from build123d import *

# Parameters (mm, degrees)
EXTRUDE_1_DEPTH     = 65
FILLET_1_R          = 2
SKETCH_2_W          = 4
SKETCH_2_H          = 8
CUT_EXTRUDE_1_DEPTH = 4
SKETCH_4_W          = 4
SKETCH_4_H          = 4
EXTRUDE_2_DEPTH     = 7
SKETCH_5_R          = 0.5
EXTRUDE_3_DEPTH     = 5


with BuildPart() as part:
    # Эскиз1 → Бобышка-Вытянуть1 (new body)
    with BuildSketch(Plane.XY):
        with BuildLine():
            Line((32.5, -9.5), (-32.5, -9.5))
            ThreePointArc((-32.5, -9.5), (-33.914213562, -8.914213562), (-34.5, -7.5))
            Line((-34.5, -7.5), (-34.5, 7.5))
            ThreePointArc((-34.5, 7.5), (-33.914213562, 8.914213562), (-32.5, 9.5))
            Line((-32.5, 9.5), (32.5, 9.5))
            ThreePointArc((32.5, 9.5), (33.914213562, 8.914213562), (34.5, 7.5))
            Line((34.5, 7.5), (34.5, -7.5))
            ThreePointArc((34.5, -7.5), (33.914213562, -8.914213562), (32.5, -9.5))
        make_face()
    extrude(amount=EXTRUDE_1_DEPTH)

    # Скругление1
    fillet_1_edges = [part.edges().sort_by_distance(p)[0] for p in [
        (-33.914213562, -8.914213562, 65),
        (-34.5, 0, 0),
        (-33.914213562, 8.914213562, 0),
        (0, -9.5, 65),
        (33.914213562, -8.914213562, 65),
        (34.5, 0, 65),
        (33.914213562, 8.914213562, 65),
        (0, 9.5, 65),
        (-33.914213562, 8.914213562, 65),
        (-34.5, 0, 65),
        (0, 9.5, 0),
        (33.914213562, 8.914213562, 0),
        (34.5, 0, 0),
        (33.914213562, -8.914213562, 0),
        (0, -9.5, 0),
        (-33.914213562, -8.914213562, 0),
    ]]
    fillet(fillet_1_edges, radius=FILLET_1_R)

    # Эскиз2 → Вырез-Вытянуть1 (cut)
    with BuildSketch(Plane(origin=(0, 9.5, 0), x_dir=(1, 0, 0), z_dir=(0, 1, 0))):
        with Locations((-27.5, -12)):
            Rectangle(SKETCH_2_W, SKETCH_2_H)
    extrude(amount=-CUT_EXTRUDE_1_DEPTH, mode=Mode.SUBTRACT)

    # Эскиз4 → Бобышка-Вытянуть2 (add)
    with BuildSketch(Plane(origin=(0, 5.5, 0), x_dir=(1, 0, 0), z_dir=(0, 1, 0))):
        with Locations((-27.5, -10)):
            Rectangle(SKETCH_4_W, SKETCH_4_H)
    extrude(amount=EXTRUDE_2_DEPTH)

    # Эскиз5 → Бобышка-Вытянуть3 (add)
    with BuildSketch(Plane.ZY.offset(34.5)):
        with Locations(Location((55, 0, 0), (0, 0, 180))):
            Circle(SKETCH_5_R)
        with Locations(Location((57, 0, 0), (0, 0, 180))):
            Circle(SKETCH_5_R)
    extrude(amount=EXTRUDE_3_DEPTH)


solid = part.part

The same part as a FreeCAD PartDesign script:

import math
import FreeCAD as App
import Part
import Sketcher
from FreeCAD import Vector


def edges_at(feature, points):
    """Names of the edges that pass closest to the given points."""
    edges = feature.Shape.Edges
    near = lambda p: min(range(len(edges)), key=lambda i: edges[i].distToShape(Part.Vertex(*p))[0])
    return sorted({f"Edge{near(p) + 1}" for p in points})

doc = App.newDocument("Part")
params = doc.addObject("Spreadsheet::Sheet", "Params")
for row, (alias, value) in enumerate([
    ("sketch1_radius", "2 mm"),
    ("sketch1_width", "65 mm"),
    ("sketch1_height", "15 mm"),
    ("pad1_length", "65 mm"),
    ("fillet_radius", "2 mm"),
    ("sketch2_width", "4 mm"),
    ("sketch2_height", "8 mm"),
    ("pocket1_length", "4 mm"),
    ("sketch3_width", "4 mm"),
    ("pad2_length", "7 mm"),
    ("sketch4_diameter", "1 mm"),
    ("pad3_length", "5 mm"),
], start=1):
    params.set(f"A{row}", alias)
    params.set(f"B{row}", "=" + value)
    params.setAlias(f"B{row}", alias)

body = doc.addObject("PartDesign::Body", "Body")

# Sketch on XY plane
sketch1 = doc.addObject("Sketcher::SketchObject", "Sketch")
body.addObject(sketch1)
sketch1.AttachmentSupport = (doc.XY_Plane, [""])
sketch1.MapMode = "FlatFace"
sketch1.addGeometry([
    Part.LineSegment(Vector(-32.5, -9.5, 0), Vector(32.5, -9.5, 0)),  # 0
    Part.ArcOfCircle(Part.Circle(Vector(32.5, -7.5, 0), Vector(0, 0, 1), 2), math.radians(-90), math.radians(0)),  # 1
    Part.LineSegment(Vector(34.5, -7.5, 0), Vector(34.5, 7.5, 0)),  # 2
    Part.ArcOfCircle(Part.Circle(Vector(32.5, 7.5, 0), Vector(0, 0, 1), 2), math.radians(0), math.radians(90)),  # 3
    Part.LineSegment(Vector(32.5, 9.5, 0), Vector(-32.5, 9.5, 0)),  # 4
    Part.ArcOfCircle(Part.Circle(Vector(-32.5, 7.5, 0), Vector(0, 0, 1), 2), math.radians(90), math.radians(180)),  # 5
    Part.LineSegment(Vector(-34.5, 7.5, 0), Vector(-34.5, -7.5, 0)),  # 6
    Part.ArcOfCircle(Part.Circle(Vector(-32.5, -7.5, 0), Vector(0, 0, 1), 2), math.radians(-180), math.radians(-90)),  # 7
], False)
sketch1.addConstraint([
    Sketcher.Constraint("Tangent", 0, 2, 1, 1),
    Sketcher.Constraint("Tangent", 1, 2, 2, 1),
    Sketcher.Constraint("Tangent", 2, 2, 3, 1),
    Sketcher.Constraint("Tangent", 3, 2, 4, 1),
    Sketcher.Constraint("Tangent", 4, 2, 5, 1),
    Sketcher.Constraint("Tangent", 5, 2, 6, 1),
    Sketcher.Constraint("Tangent", 6, 2, 7, 1),
    Sketcher.Constraint("Tangent", 7, 2, 0, 1),
    Sketcher.Constraint("Horizontal", 0),
    Sketcher.Constraint("Vertical", 2),
    Sketcher.Constraint("Horizontal", 4),
    Sketcher.Constraint("Vertical", 6),
    Sketcher.Constraint("Equal", 1, 3),
    Sketcher.Constraint("Equal", 3, 5),
    Sketcher.Constraint("Equal", 5, 7),
    Sketcher.Constraint("Symmetric", 1, 3, 5, 3, -1, 1),
    Sketcher.Constraint("Radius", 1, 2.0),
    Sketcher.Constraint("DistanceX", 0, 1, 0, 2, 65.0),
    Sketcher.Constraint("DistanceY", 2, 1, 2, 2, 15.0),
])
sketch1.setExpression("Constraints[16]", "Params.sketch1_radius")
sketch1.setExpression("Constraints[17]", "Params.sketch1_width")
sketch1.setExpression("Constraints[18]", "Params.sketch1_height")
pad1 = doc.addObject("PartDesign::Pad", "Pad")
body.addObject(pad1)
pad1.Profile = sketch1
pad1.setExpression("Length", "Params.pad1_length")
doc.recompute()

fillet = doc.addObject("PartDesign::Fillet", "Fillet")
body.addObject(fillet)
fillet.Base = (pad1, edges_at(pad1, [
    (-33.914, -8.914, 65),
    (-34.5, 0, 0),
    (-33.914, 8.914, 0),
    (0, -9.5, 65),
    (33.914, -8.914, 65),
    (34.5, 0, 65),
    (33.914, 8.914, 65),
    (0, 9.5, 65),
    (-33.914, 8.914, 65),
    (-34.5, 0, 65),
    (0, 9.5, 0),
    (33.914, 8.914, 0),
    (34.5, 0, 0),
    (33.914, -8.914, 0),
    (0, -9.5, 0),
    (-33.914, -8.914, 0),
]))
fillet.setExpression("Radius", "Params.fillet_radius")

# Sketch on XZ plane
sketch2 = doc.addObject("Sketcher::SketchObject", "Sketch001")
body.addObject(sketch2)
sketch2.AttachmentSupport = (doc.XZ_Plane, [""])
sketch2.MapMode = "FlatFace"
sketch2.AttachmentOffset = App.Placement(Vector(0, 0, -9.5), App.Rotation())
sketch2.addGeometry([
    Part.LineSegment(Vector(-29.5, 8, 0), Vector(-29.5, 16, 0)),
    Part.LineSegment(Vector(-29.5, 16, 0), Vector(-25.5, 16, 0)),
    Part.LineSegment(Vector(-25.5, 16, 0), Vector(-25.5, 8, 0)),
    Part.LineSegment(Vector(-25.5, 8, 0), Vector(-29.5, 8, 0)),
], False)
sketch2.addConstraint([
    Sketcher.Constraint("Coincident", 0, 2, 1, 1),
    Sketcher.Constraint("Coincident", 1, 2, 2, 1),
    Sketcher.Constraint("Coincident", 2, 2, 3, 1),
    Sketcher.Constraint("Coincident", 3, 2, 0, 1),
    Sketcher.Constraint("Vertical", 0),
    Sketcher.Constraint("Horizontal", 1),
    Sketcher.Constraint("Vertical", 2),
    Sketcher.Constraint("Horizontal", 3),
    Sketcher.Constraint("DistanceX", 1, 1, 1, 2, 4.0),
    Sketcher.Constraint("DistanceY", 0, 1, 0, 2, 8.0),
    Sketcher.Constraint("DistanceY", -1, 1, 0, 2, 16.0),
    Sketcher.Constraint("DistanceX", 0, 2, -1, 1, 29.5),
])
sketch2.setExpression("Constraints[8]", "Params.sketch2_width")
sketch2.setExpression("Constraints[9]", "Params.sketch2_height")
pocket1 = doc.addObject("PartDesign::Pocket", "Pocket")
body.addObject(pocket1)
pocket1.Profile = sketch2
pocket1.setExpression("Length", "Params.pocket1_length")
pocket1.Reversed = True

# Sketch on XZ plane
sketch3 = doc.addObject("Sketcher::SketchObject", "Sketch002")
body.addObject(sketch3)
sketch3.AttachmentSupport = (doc.XZ_Plane, [""])
sketch3.MapMode = "FlatFace"
sketch3.AttachmentOffset = App.Placement(Vector(0, 0, -5.5), App.Rotation())
sketch3.addGeometry([
    Part.LineSegment(Vector(-29.5, 8, 0), Vector(-29.5, 12, 0)),
    Part.LineSegment(Vector(-29.5, 12, 0), Vector(-25.5, 12, 0)),
    Part.LineSegment(Vector(-25.5, 12, 0), Vector(-25.5, 8, 0)),
    Part.LineSegment(Vector(-25.5, 8, 0), Vector(-29.5, 8, 0)),
], False)
sketch3.addConstraint([
    Sketcher.Constraint("Coincident", 0, 2, 1, 1),
    Sketcher.Constraint("Coincident", 1, 2, 2, 1),
    Sketcher.Constraint("Coincident", 2, 2, 3, 1),
    Sketcher.Constraint("Coincident", 3, 2, 0, 1),
    Sketcher.Constraint("Vertical", 0),
    Sketcher.Constraint("Horizontal", 1),
    Sketcher.Constraint("Vertical", 2),
    Sketcher.Constraint("Horizontal", 3),
    Sketcher.Constraint("Equal", 3, 0),
    Sketcher.Constraint("DistanceX", 1, 1, 1, 2, 4.0),
    Sketcher.Constraint("DistanceY", -1, 1, 0, 2, 12.0),
    Sketcher.Constraint("DistanceX", 0, 2, -1, 1, 29.5),
])
sketch3.setExpression("Constraints[9]", "Params.sketch3_width")
pad2 = doc.addObject("PartDesign::Pad", "Pad001")
body.addObject(pad2)
pad2.Profile = sketch3
pad2.setExpression("Length", "Params.pad2_length")
pad2.Reversed = True

# Sketch on YZ plane
sketch4 = doc.addObject("Sketcher::SketchObject", "Sketch003")
body.addObject(sketch4)
sketch4.AttachmentSupport = (doc.YZ_Plane, [""])
sketch4.MapMode = "FlatFace"
sketch4.AttachmentOffset = App.Placement(Vector(0, 0, -34.5), App.Rotation())
sketch4.addGeometry([
    Part.Circle(Vector(0, 55, 0), Vector(0, 0, 1), 0.5),
    Part.Circle(Vector(0, 57, 0), Vector(0, 0, 1), 0.5),
], False)
sketch4.addConstraint([
    Sketcher.Constraint("Equal", 0, 1),
    Sketcher.Constraint("PointOnObject", 0, 3, -2),
    Sketcher.Constraint("PointOnObject", 1, 3, -2),
    Sketcher.Constraint("Diameter", 0, 1.0),
    Sketcher.Constraint("DistanceY", -1, 1, 0, 3, 55.0),
    Sketcher.Constraint("DistanceY", -1, 1, 1, 3, 57.0),
])
sketch4.setExpression("Constraints[3]", "Params.sketch4_diameter")
pad3 = doc.addObject("PartDesign::Pad", "Pad002")
body.addObject(pad3)
pad3.Profile = sketch4
pad3.setExpression("Length", "Params.pad3_length")
pad3.Reversed = True

doc.recompute()
